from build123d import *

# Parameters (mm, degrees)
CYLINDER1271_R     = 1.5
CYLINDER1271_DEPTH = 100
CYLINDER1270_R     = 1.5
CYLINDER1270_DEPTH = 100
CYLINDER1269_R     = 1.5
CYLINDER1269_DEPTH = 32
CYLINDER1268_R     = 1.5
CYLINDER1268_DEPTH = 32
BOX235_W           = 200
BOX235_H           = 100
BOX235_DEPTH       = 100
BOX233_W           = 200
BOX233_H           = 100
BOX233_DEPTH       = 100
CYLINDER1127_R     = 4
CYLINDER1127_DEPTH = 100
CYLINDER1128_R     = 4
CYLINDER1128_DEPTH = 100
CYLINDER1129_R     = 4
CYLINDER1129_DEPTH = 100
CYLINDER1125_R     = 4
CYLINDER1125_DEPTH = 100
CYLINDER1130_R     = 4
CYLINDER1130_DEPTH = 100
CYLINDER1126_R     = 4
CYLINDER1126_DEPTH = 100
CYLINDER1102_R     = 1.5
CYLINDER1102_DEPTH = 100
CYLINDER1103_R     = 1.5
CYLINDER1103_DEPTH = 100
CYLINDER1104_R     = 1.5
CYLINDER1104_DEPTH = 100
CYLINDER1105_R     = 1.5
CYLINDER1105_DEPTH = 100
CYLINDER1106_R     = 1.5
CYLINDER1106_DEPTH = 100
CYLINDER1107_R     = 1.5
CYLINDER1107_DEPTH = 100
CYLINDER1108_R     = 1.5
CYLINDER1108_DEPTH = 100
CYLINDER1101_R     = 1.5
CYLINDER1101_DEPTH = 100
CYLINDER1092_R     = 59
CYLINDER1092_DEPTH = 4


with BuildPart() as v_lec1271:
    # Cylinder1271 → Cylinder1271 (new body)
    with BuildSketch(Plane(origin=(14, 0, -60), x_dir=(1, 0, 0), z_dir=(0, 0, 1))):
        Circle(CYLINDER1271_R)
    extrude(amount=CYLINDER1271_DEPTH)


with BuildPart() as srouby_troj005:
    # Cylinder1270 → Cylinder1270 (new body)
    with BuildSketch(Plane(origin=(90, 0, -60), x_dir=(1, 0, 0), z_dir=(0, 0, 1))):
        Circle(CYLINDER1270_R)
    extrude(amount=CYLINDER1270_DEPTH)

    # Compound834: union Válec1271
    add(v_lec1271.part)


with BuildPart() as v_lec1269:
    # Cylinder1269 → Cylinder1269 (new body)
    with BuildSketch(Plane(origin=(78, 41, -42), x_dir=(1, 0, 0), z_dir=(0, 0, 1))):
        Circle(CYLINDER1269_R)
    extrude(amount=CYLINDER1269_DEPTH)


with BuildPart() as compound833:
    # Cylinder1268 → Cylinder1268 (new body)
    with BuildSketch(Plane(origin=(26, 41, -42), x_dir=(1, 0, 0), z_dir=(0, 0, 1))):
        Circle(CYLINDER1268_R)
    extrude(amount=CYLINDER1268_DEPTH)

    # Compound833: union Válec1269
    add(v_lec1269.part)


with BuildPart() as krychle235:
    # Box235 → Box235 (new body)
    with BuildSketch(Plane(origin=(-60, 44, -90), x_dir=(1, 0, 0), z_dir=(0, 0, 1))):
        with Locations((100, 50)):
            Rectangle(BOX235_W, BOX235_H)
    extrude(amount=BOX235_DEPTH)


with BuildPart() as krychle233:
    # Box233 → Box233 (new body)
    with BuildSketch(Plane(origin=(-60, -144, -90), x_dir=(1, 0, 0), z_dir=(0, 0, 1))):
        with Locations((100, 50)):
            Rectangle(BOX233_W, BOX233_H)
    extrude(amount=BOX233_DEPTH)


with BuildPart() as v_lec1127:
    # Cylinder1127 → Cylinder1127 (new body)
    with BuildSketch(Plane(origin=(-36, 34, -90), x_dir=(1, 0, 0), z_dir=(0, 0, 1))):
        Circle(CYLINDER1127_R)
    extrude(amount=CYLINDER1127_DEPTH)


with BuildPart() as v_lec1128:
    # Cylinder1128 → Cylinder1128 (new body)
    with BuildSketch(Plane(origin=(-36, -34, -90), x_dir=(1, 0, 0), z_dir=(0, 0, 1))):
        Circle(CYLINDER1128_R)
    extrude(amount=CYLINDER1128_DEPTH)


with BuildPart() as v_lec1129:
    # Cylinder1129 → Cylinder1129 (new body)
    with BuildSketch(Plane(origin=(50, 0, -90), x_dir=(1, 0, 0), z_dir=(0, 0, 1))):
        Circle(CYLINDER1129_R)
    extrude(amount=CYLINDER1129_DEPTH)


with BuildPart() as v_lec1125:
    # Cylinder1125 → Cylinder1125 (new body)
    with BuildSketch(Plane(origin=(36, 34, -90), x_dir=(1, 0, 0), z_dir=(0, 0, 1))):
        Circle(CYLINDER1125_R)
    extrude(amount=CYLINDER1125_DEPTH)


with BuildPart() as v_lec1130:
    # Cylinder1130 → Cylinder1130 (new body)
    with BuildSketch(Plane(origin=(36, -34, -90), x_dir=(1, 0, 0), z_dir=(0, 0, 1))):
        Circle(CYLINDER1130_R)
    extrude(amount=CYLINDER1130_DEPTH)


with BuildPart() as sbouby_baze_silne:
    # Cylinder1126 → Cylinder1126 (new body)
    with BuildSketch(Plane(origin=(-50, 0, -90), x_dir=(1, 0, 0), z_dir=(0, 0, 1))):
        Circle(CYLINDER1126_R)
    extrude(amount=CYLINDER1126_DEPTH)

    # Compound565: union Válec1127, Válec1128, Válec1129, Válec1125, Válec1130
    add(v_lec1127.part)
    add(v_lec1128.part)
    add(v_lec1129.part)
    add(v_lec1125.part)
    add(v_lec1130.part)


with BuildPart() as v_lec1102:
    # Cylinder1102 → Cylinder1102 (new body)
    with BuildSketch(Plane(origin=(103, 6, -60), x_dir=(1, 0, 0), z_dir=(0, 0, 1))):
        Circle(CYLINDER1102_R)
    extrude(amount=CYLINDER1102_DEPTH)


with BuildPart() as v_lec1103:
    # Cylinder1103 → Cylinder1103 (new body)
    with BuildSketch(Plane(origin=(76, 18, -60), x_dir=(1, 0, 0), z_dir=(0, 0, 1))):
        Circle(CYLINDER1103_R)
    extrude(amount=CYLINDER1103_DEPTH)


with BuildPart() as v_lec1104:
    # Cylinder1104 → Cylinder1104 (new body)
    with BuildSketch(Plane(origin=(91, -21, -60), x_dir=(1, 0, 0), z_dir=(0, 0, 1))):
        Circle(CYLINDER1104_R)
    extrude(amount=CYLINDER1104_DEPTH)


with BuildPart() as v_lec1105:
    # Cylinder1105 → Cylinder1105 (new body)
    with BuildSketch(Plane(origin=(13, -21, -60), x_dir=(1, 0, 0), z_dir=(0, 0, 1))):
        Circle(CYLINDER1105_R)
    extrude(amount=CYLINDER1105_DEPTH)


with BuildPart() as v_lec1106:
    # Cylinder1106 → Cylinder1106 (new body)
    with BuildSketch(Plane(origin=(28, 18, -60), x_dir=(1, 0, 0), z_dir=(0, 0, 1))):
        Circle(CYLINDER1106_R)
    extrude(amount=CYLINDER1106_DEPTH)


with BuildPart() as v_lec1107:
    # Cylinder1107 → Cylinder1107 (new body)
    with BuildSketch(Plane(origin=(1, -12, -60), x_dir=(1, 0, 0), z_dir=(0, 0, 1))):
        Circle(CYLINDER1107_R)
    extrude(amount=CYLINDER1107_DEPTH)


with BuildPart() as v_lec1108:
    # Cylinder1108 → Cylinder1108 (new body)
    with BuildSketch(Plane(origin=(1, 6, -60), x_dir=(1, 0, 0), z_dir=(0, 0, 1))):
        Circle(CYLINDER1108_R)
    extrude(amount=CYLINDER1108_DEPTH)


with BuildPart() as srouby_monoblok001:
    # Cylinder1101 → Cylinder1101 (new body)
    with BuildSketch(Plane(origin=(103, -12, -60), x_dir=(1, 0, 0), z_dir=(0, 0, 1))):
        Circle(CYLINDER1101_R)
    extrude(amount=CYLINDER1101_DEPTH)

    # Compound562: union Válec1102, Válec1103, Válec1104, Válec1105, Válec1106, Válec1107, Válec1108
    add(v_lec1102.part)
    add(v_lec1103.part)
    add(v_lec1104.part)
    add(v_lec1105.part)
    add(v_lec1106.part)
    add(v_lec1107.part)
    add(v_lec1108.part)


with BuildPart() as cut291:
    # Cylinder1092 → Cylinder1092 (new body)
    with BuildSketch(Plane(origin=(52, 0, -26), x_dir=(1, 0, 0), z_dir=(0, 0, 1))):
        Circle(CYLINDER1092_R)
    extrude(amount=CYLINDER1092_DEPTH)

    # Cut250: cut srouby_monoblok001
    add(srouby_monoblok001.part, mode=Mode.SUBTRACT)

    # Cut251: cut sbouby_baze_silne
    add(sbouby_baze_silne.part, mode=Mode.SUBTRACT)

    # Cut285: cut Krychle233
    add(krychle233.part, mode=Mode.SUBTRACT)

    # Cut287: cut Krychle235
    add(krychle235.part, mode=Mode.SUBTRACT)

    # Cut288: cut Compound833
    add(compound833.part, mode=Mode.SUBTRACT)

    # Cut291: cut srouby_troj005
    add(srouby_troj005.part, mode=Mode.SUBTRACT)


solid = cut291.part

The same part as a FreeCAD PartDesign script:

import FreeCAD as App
import Part
import Sketcher
from FreeCAD import Vector
Q = App.Units.Quantity

doc = App.newDocument("Part")
params = doc.addObject("Spreadsheet::Sheet", "Params")
for row, (alias, value) in enumerate([
    ("sketch1_diameter", "3 mm"),
    ("pad1_length", "100 mm"),
    ("sketch2_diameter", "3 mm"),
    ("pad2_length", "100 mm"),
    ("sketch3_diameter", "3 mm"),
    ("pad3_length", "32 mm"),
    ("sketch4_diameter", "3 mm"),
    ("pad4_length", "32 mm"),
    ("sketch5_width", "200 mm"),
    ("sketch5_height", "100 mm"),
    ("pad5_length", "100 mm"),
    ("sketch6_width", "200 mm"),
    ("sketch6_height", "100 mm"),
    ("pad6_length", "100 mm"),
    ("sketch7_diameter", "8 mm"),
    ("pad7_length", "100 mm"),
    ("sketch8_diameter", "8 mm"),
    ("pad8_length", "100 mm"),
    ("sketch9_diameter", "8 mm"),
    ("pad9_length", "100 mm"),
    ("sketch10_diameter", "8 mm"),
    ("pad10_length", "100 mm"),
    ("sketch11_diameter", "8 mm"),
    ("pad11_length", "100 mm"),
    ("sketch12_diameter", "8 mm"),
    ("pad12_length", "100 mm"),
    ("sketch13_diameter", "3 mm"),
    ("pad13_length", "100 mm"),
    ("sketch14_diameter", "3 mm"),
    ("pad14_length", "100 mm"),
    ("sketch15_diameter", "3 mm"),
    ("pad15_length", "100 mm"),
    ("sketch16_diameter", "3 mm"),
    ("pad16_length", "100 mm"),
    ("sketch17_diameter", "3 mm"),
    ("pad17_length", "100 mm"),
    ("sketch18_diameter", "3 mm"),
    ("pad18_length", "100 mm"),
    ("sketch19_diameter", "3 mm"),
    ("pad19_length", "100 mm"),
    ("sketch20_diameter", "3 mm"),
    ("pad20_length", "100 mm"),
    ("sketch21_diameter", "118 mm"),
    ("pad21_length", "4 mm"),
], start=1):
    params.set(f"A{row}", alias)
    params.set(f"B{row}", "=" + value)
    params.setAlias(f"B{row}", alias)

body = doc.addObject("PartDesign::Body", "Body")

# Sketch on XY plane
sketch1 = body.newObject("Sketcher::SketchObject", "Sketch")
sketch1.AttachmentSupport = (doc.getObject("XY_Plane"), [""])
sketch1.MapMode = "FlatFace"
sketch1.AttachmentOffset = App.Placement(Vector(0, 0, -60), App.Rotation())
sketch1.addGeometry(Part.Circle(Vector(14, 0, 0), Vector(0, 0, 1), 1.5), False)
sketch1.addConstraint([
    Sketcher.Constraint("PointOnObject", 0, 3, -1),
    Sketcher.Constraint("Diameter", 0, Q("3 mm")),
    Sketcher.Constraint("DistanceX", -1, 1, 0, 3, Q("14 mm")),
])
sketch1.setExpression("Constraints[1]", "Params.sketch1_diameter")
pad1 = body.newObject("PartDesign::Pad", "Pad")
pad1.Profile = sketch1
pad1.setExpression("Length", "Params.pad1_length")
body2 = doc.addObject("PartDesign::Body", "Body001")
body2.AllowCompound = True

# Sketch on XY plane
sketch2 = body2.newObject("Sketcher::SketchObject", "Sketch001")
sketch2.AttachmentSupport = (doc.getObject("XY_Plane001"), [""])
sketch2.MapMode = "FlatFace"
sketch2.AttachmentOffset = App.Placement(Vector(0, 0, -60), App.Rotation())
sketch2.addGeometry(Part.Circle(Vector(90, 0, 0), Vector(0, 0, 1), 1.5), False)
sketch2.addConstraint([
    Sketcher.Constraint("PointOnObject", 0, 3, -1),
    Sketcher.Constraint("Diameter", 0, Q("3 mm")),
    Sketcher.Constraint("DistanceX", -1, 1, 0, 3, Q("90 mm")),
])
sketch2.setExpression("Constraints[1]", "Params.sketch2_diameter")
pad2 = body2.newObject("PartDesign::Pad", "Pad001")
pad2.Profile = sketch2
pad2.setExpression("Length", "Params.pad2_length")
doc.recompute()

boolean = body2.newObject("PartDesign::Boolean", "Boolean")
boolean.Type = "Fuse"
boolean.addObjects([body])
body3 = doc.addObject("PartDesign::Body", "Body002")

# Sketch on XY plane
sketch3 = body3.newObject("Sketcher::SketchObject", "Sketch002")
sketch3.AttachmentSupport = (doc.getObject("XY_Plane002"), [""])
sketch3.MapMode = "FlatFace"
sketch3.AttachmentOffset = App.Placement(Vector(0, 0, -42), App.Rotation())
sketch3.addGeometry(Part.Circle(Vector(78, 41, 0), Vector(0, 0, 1), 1.5), False)
sketch3.addConstraint([
    Sketcher.Constraint("Diameter", 0, Q("3 mm")),
    Sketcher.Constraint("DistanceX", -1, 1, 0, 3, Q("78 mm")),
    Sketcher.Constraint("DistanceY", -1, 1, 0, 3, Q("41 mm")),
])
sketch3.setExpression("Constraints[0]", "Params.sketch3_diameter")
pad3 = body3.newObject("PartDesign::Pad", "Pad002")
pad3.Profile = sketch3
pad3.setExpression("Length", "Params.pad3_length")
body4 = doc.addObject("PartDesign::Body", "Body003")
body4.AllowCompound = True

# Sketch on XY plane
sketch4 = body4.newObject("Sketcher::SketchObject", "Sketch003")
sketch4.AttachmentSupport = (doc.getObject("XY_Plane003"), [""])
sketch4.MapMode = "FlatFace"
sketch4.AttachmentOffset = App.Placement(Vector(0, 0, -42), App.Rotation())
sketch4.addGeometry(Part.Circle(Vector(26, 41, 0), Vector(0, 0, 1), 1.5), False)
sketch4.addConstraint([
    Sketcher.Constraint("Diameter", 0, Q("3 mm")),
    Sketcher.Constraint("DistanceX", -1, 1, 0, 3, Q("26 mm")),
    Sketcher.Constraint("DistanceY", -1, 1, 0, 3, Q("41 mm")),
])
sketch4.setExpression("Constraints[0]", "Params.sketch4_diameter")
pad4 = body4.newObject("PartDesign::Pad", "Pad003")
pad4.Profile = sketch4
pad4.setExpression("Length", "Params.pad4_length")
doc.recompute()

boolean2 = body4.newObject("PartDesign::Boolean", "Boolean001")
boolean2.Type = "Fuse"
boolean2.addObjects([body3])
body5 = doc.addObject("PartDesign::Body", "Body004")

# Sketch on XY plane
sketch5 = body5.newObject("Sketcher::SketchObject", "Sketch004")
sketch5.AttachmentSupport = (doc.getObject("XY_Plane004"), [""])
sketch5.MapMode = "FlatFace"
sketch5.AttachmentOffset = App.Placement(Vector(0, 0, -90), App.Rotation())
sketch5.addGeometry([
    Part.LineSegment(Vector(-60, 144, 0), Vector(-60, 44, 0)),
    Part.LineSegment(Vector(-60, 44, 0), Vector(140, 44, 0)),
    Part.LineSegment(Vector(140, 44, 0), Vector(140, 144, 0)),
    Part.LineSegment(Vector(140, 144, 0), Vector(-60, 144, 0)),
], False)
sketch5.addConstraint([
    Sketcher.Constraint("Coincident", 0, 2, 1, 1),
    Sketcher.Constraint("Coincident", 1, 2, 2, 1),
    Sketcher.Constraint("Coincident", 2, 2, 3, 1),
    Sketcher.Constraint("Coincident", 3, 2, 0, 1),
    Sketcher.Constraint("Vertical", 0),
    Sketcher.Constraint("Horizontal", 1),
    Sketcher.Constraint("Vertical", 2),
    Sketcher.Constraint("Horizontal", 3),
    Sketcher.Constraint("DistanceX", 1, 1, 1, 2, Q("200 mm")),
    Sketcher.Constraint("DistanceY", 0, 2, 0, 1, Q("100 mm")),
    Sketcher.Constraint("DistanceX", 0, 2, -1, 1, Q("60 mm")),
    Sketcher.Constraint("DistanceY", -1, 1, 0, 2, Q("44 mm")),
])
sketch5.setExpression("Constraints[8]", "Params.sketch5_width")
sketch5.setExpression("Constraints[9]", "Params.sketch5_height")
pad5 = body5.newObject("PartDesign::Pad", "Pad004")
pad5.Profile = sketch5
pad5.setExpression("Length", "Params.pad5_length")
body6 = doc.addObject("PartDesign::Body", "Body005")

# Sketch on XY plane
sketch6 = body6.newObject("Sketcher::SketchObject", "Sketch005")
sketch6.AttachmentSupport = (doc.getObject("XY_Plane005"), [""])
sketch6.MapMode = "FlatFace"
sketch6.AttachmentOffset = App.Placement(Vector(0, 0, -90), App.Rotation())
sketch6.addGeometry([
    Part.LineSegment(Vector(-60, -44, 0), Vector(-60, -144, 0)),
    Part.LineSegment(Vector(-60, -144, 0), Vector(140, -144, 0)),
    Part.LineSegment(Vector(140, -144, 0), Vector(140, -44, 0)),
    Part.LineSegment(Vector(140, -44, 0), Vector(-60, -44, 0)),
], False)
sketch6.addConstraint([
    Sketcher.Constraint("Coincident", 0, 2, 1, 1),
    Sketcher.Constraint("Coincident", 1, 2, 2, 1),
    Sketcher.Constraint("Coincident", 2, 2, 3, 1),
    Sketcher.Constraint("Coincident", 3, 2, 0, 1),
    Sketcher.Constraint("Vertical", 0),
    Sketcher.Constraint("Horizontal", 1),
    Sketcher.Constraint("Vertical", 2),
    Sketcher.Constraint("Horizontal", 3),
    Sketcher.Constraint("DistanceX", 1, 1, 1, 2, Q("200 mm")),
    Sketcher.Constraint("DistanceY", 0, 2, 0, 1, Q("100 mm")),
    Sketcher.Constraint("DistanceX", 0, 2, -1, 1, Q("60 mm")),
    Sketcher.Constraint("DistanceY", 0, 2, -1, 1, Q("144 mm")),
])
sketch6.setExpression("Constraints[8]", "Params.sketch6_width")
sketch6.setExpression("Constraints[9]", "Params.sketch6_height")
pad6 = body6.newObject("PartDesign::Pad", "Pad005")
pad6.Profile = sketch6
pad6.setExpression("Length", "Params.pad6_length")
body7 = doc.addObject("PartDesign::Body", "Body006")

# Sketch on XY plane
sketch7 = body7.newObject("Sketcher::SketchObject", "Sketch006")
sketch7.AttachmentSupport = (doc.getObject("XY_Plane006"), [""])
sketch7.MapMode = "FlatFace"
sketch7.AttachmentOffset = App.Placement(Vector(0, 0, -90), App.Rotation())
sketch7.addGeometry(Part.Circle(Vector(-36, 34, 0), Vector(0, 0, 1), 4), False)
sketch7.addConstraint([
    Sketcher.Constraint("Diameter", 0, Q("8 mm")),
    Sketcher.Constraint("DistanceX", 0, 3, -1, 1, Q("36 mm")),
    Sketcher.Constraint("DistanceY", -1, 1, 0, 3, Q("34 mm")),
])
sketch7.setExpression("Constraints[0]", "Params.sketch7_diameter")
pad7 = body7.newObject("PartDesign::Pad", "Pad006")
pad7.Profile = sketch7
pad7.setExpression("Length", "Params.pad7_length")
body8 = doc.addObject("PartDesign::Body", "Body007")

# Sketch on XY plane
sketch8 = body8.newObject("Sketcher::SketchObject", "Sketch007")
sketch8.AttachmentSupport = (doc.getObject("XY_Plane007"), [""])
sketch8.MapMode = "FlatFace"
sketch8.AttachmentOffset = App.Placement(Vector(0, 0, -90), App.Rotation())
sketch8.addGeometry(Part.Circle(Vector(-36, -34, 0), Vector(0, 0, 1), 4), False)
sketch8.addConstraint([
    Sketcher.Constraint("Diameter", 0, Q("8 mm")),
    Sketcher.Constraint("DistanceX", 0, 3, -1, 1, Q("36 mm")),
    Sketcher.Constraint("DistanceY", 0, 3, -1, 1, Q("34 mm")),
])
sketch8.setExpression("Constraints[0]", "Params.sketch8_diameter")
pad8 = body8.newObject("PartDesign::Pad", "Pad007")
pad8.Profile = sketch8
pad8.setExpression("Length", "Params.pad8_length")
body9 = doc.addObject("PartDesign::Body", "Body008")

# Sketch on XY plane
sketch9 = body9.newObject("Sketcher::SketchObject", "Sketch008")
sketch9.AttachmentSupport = (doc.getObject("XY_Plane008"), [""])
sketch9.MapMode = "FlatFace"
sketch9.AttachmentOffset = App.Placement(Vector(0, 0, -90), App.Rotation())
sketch9.addGeometry(Part.Circle(Vector(50, 0, 0), Vector(0, 0, 1), 4), False)
sketch9.addConstraint([
    Sketcher.Constraint("PointOnObject", 0, 3, -1),
    Sketcher.Constraint("Diameter", 0, Q("8 mm")),
    Sketcher.Constraint("DistanceX", -1, 1, 0, 3, Q("50 mm")),
])
sketch9.setExpression("Constraints[1]", "Params.sketch9_diameter")
pad9 = body9.newObject("PartDesign::Pad", "Pad008")
pad9.Profile = sketch9
pad9.setExpression("Length", "Params.pad9_length")
body10 = doc.addObject("PartDesign::Body", "Body009")

# Sketch on XY plane
sketch10 = body10.newObject("Sketcher::SketchObject", "Sketch009")
sketch10.AttachmentSupport = (doc.getObject("XY_Plane009"), [""])
sketch10.MapMode = "FlatFace"
sketch10.AttachmentOffset = App.Placement(Vector(0, 0, -90), App.Rotation())
sketch10.addGeometry(Part.Circle(Vector(36, 34, 0), Vector(0, 0, 1), 4), False)
sketch10.addConstraint([
    Sketcher.Constraint("Diameter", 0, Q("8 mm")),
    Sketcher.Constraint("DistanceX", -1, 1, 0, 3, Q("36 mm")),
    Sketcher.Constraint("DistanceY", -1, 1, 0, 3, Q("34 mm")),
])
sketch10.setExpression("Constraints[0]", "Params.sketch10_diameter")
pad10 = body10.newObject("PartDesign::Pad", "Pad009")
pad10.Profile = sketch10
pad10.setExpression("Length", "Params.pad10_length")
body11 = doc.addObject("PartDesign::Body", "Body010")

# Sketch on XY plane
sketch11 = body11.newObject("Sketcher::SketchObject", "Sketch010")
sketch11.AttachmentSupport = (doc.getObject("XY_Plane010"), [""])
sketch11.MapMode = "FlatFace"
sketch11.AttachmentOffset = App.Placement(Vector(0, 0, -90), App.Rotation())
sketch11.addGeometry(Part.Circle(Vector(36, -34, 0), Vector(0, 0, 1), 4), False)
sketch11.addConstraint([
    Sketcher.Constraint("Diameter", 0, Q("8 mm")),
    Sketcher.Constraint("DistanceX", -1, 1, 0, 3, Q("36 mm")),
    Sketcher.Constraint("DistanceY", 0, 3, -1, 1, Q("34 mm")),
])
sketch11.setExpression("Constraints[0]", "Params.sketch11_diameter")
pad11 = body11.newObject("PartDesign::Pad", "Pad010")
pad11.Profile = sketch11
pad11.setExpression("Length", "Params.pad11_length")
body12 = doc.addObject("PartDesign::Body", "Body011")
body12.AllowCompound = True

# Sketch on XY plane
sketch12 = body12.newObject("Sketcher::SketchObject", "Sketch011")
sketch12.AttachmentSupport = (doc.getObject("XY_Plane011"), [""])
sketch12.MapMode = "FlatFace"
sketch12.AttachmentOffset = App.Placement(Vector(0, 0, -90), App.Rotation())
sketch12.addGeometry(Part.Circle(Vector(-50, 0, 0), Vector(0, 0, 1), 4), False)
sketch12.addConstraint([
    Sketcher.Constraint("PointOnObject", 0, 3, -1),
    Sketcher.Constraint("Diameter", 0, Q("8 mm")),
    Sketcher.Constraint("DistanceX", 0, 3, -1, 1, Q("50 mm")),
])
sketch12.setExpression("Constraints[1]", "Params.sketch12_diameter")
pad12 = body12.newObject("PartDesign::Pad", "Pad011")
pad12.Profile = sketch12
pad12.setExpression("Length", "Params.pad12_length")
doc.recompute()

boolean3 = body12.newObject("PartDesign::Boolean", "Boolean002")
boolean3.Type = "Fuse"
boolean3.addObjects([body7])
doc.recompute()

boolean4 = body12.newObject("PartDesign::Boolean", "Boolean003")
boolean4.Type = "Fuse"
boolean4.addObjects([body8])
doc.recompute()

boolean5 = body12.newObject("PartDesign::Boolean", "Boolean004")
boolean5.Type = "Fuse"
boolean5.addObjects([body9])
doc.recompute()

boolean6 = body12.newObject("PartDesign::Boolean", "Boolean005")
boolean6.Type = "Fuse"
boolean6.addObjects([body10])
doc.recompute()

boolean7 = body12.newObject("PartDesign::Boolean", "Boolean006")
boolean7.Type = "Fuse"
boolean7.addObjects([body11])
body13 = doc.addObject("PartDesign::Body", "Body012")

# Sketch on XY plane
sketch13 = body13.newObject("Sketcher::SketchObject", "Sketch012")
sketch13.AttachmentSupport = (doc.getObject("XY_Plane012"), [""])
sketch13.MapMode = "FlatFace"
sketch13.AttachmentOffset = App.Placement(Vector(0, 0, -60), App.Rotation())
sketch13.addGeometry(Part.Circle(Vector(103, 6, 0), Vector(0, 0, 1), 1.5), False)
sketch13.addConstraint([
    Sketcher.Constraint("Diameter", 0, Q("3 mm")),
    Sketcher.Constraint("DistanceX", -1, 1, 0, 3, Q("103 mm")),
    Sketcher.Constraint("DistanceY", -1, 1, 0, 3, Q("6 mm")),
])
sketch13.setExpression("Constraints[0]", "Params.sketch13_diameter")
pad13 = body13.newObject("PartDesign::Pad", "Pad012")
pad13.Profile = sketch13
pad13.setExpression("Length", "Params.pad13_length")
body14 = doc.addObject("PartDesign::Body", "Body013")

# Sketch on XY plane
sketch14 = body14.newObject("Sketcher::SketchObject", "Sketch013")
sketch14.AttachmentSupport = (doc.getObject("XY_Plane013"), [""])
sketch14.MapMode = "FlatFace"
sketch14.AttachmentOffset = App.Placement(Vector(0, 0, -60), App.Rotation())
sketch14.addGeometry(Part.Circle(Vector(76, 18, 0), Vector(0, 0, 1), 1.5), False)
sketch14.addConstraint([
    Sketcher.Constraint("Diameter", 0, Q("3 mm")),
    Sketcher.Constraint("DistanceX", -1, 1, 0, 3, Q("76 mm")),
    Sketcher.Constraint("DistanceY", -1, 1, 0, 3, Q("18 mm")),
])
sketch14.setExpression("Constraints[0]", "Params.sketch14_diameter")
pad14 = body14.newObject("PartDesign::Pad", "Pad013")
pad14.Profile = sketch14
pad14.setExpression("Length", "Params.pad14_length")
body15 = doc.addObject("PartDesign::Body", "Body014")

# Sketch on XY plane
sketch15 = body15.newObject("Sketcher::SketchObject", "Sketch014")
sketch15.AttachmentSupport = (doc.getObject("XY_Plane014"), [""])
sketch15.MapMode = "FlatFace"
sketch15.AttachmentOffset = App.Placement(Vector(0, 0, -60), App.Rotation())
sketch15.addGeometry(Part.Circle(Vector(91, -21, 0), Vector(0, 0, 1), 1.5), False)
sketch15.addConstraint([
    Sketcher.Constraint("Diameter", 0, Q("3 mm")),
    Sketcher.Constraint("DistanceX", -1, 1, 0, 3, Q("91 mm")),
    Sketcher.Constraint("DistanceY", 0, 3, -1, 1, Q("21 mm")),
])
sketch15.setExpression("Constraints[0]", "Params.sketch15_diameter")
pad15 = body15.newObject("PartDesign::Pad", "Pad014")
pad15.Profile = sketch15
pad15.setExpression("Length", "Params.pad15_length")
body16 = doc.addObject("PartDesign::Body", "Body015")

# Sketch on XY plane
sketch16 = body16.newObject("Sketcher::SketchObject", "Sketch015")
sketch16.AttachmentSupport = (doc.getObject("XY_Plane015"), [""])
sketch16.MapMode = "FlatFace"
sketch16.AttachmentOffset = App.Placement(Vector(0, 0, -60), App.Rotation())
sketch16.addGeometry(Part.Circle(Vector(13, -21, 0), Vector(0, 0, 1), 1.5), False)
sketch16.addConstraint([
    Sketcher.Constraint("Diameter", 0, Q("3 mm")),
    Sketcher.Constraint("DistanceX", -1, 1, 0, 3, Q("13 mm")),
    Sketcher.Constraint("DistanceY", 0, 3, -1, 1, Q("21 mm")),
])
sketch16.setExpression("Constraints[0]", "Params.sketch16_diameter")
pad16 = body16.newObject("PartDesign::Pad", "Pad015")
pad16.Profile = sketch16
pad16.setExpression("Length", "Params.pad16_length")
body17 = doc.addObject("PartDesign::Body", "Body016")

# Sketch on XY plane
sketch17 = body17.newObject("Sketcher::SketchObject", "Sketch016")
sketch17.AttachmentSupport = (doc.getObject("XY_Plane016"), [""])
sketch17.MapMode = "FlatFace"
sketch17.AttachmentOffset = App.Placement(Vector(0, 0, -60), App.Rotation())
sketch17.addGeometry(Part.Circle(Vector(28, 18, 0), Vector(0, 0, 1), 1.5), False)
sketch17.addConstraint([
    Sketcher.Constraint("Diameter", 0, Q("3 mm")),
    Sketcher.Constraint("DistanceX", -1, 1, 0, 3, Q("28 mm")),
    Sketcher.Constraint("DistanceY", -1, 1, 0, 3, Q("18 mm")),
])
sketch17.setExpression("Constraints[0]", "Params.sketch17_diameter")
pad17 = body17.newObject("PartDesign::Pad", "Pad016")
pad17.Profile = sketch17
pad17.setExpression("Length", "Params.pad17_length")
body18 = doc.addObject("PartDesign::Body", "Body017")

# Sketch on XY plane
sketch18 = body18.newObject("Sketcher::SketchObject", "Sketch017")
sketch18.AttachmentSupport = (doc.getObject("XY_Plane017"), [""])
sketch18.MapMode = "FlatFace"
sketch18.AttachmentOffset = App.Placement(Vector(0, 0, -60), App.Rotation())
sketch18.addGeometry(Part.Circle(Vector(1, -12, 0), Vector(0, 0, 1), 1.5), False)
sketch18.addConstraint([
    Sketcher.Constraint("Diameter", 0, Q("3 mm")),
    Sketcher.Constraint("DistanceX", -1, 1, 0, 3, Q("1 mm")),
    Sketcher.Constraint("DistanceY", 0, 3, -1, 1, Q("12 mm")),
])
sketch18.setExpression("Constraints[0]", "Params.sketch18_diameter")
pad18 = body18.newObject("PartDesign::Pad", "Pad017")
pad18.Profile = sketch18
pad18.setExpression("Length", "Params.pad18_length")
body19 = doc.addObject("PartDesign::Body", "Body018")

# Sketch on XY plane
sketch19 = body19.newObject("Sketcher::SketchObject", "Sketch018")
sketch19.AttachmentSupport = (doc.getObject("XY_Plane018"), [""])
sketch19.MapMode = "FlatFace"
sketch19.AttachmentOffset = App.Placement(Vector(0, 0, -60), App.Rotation())
sketch19.addGeometry(Part.Circle(Vector(1, 6, 0), Vector(0, 0, 1), 1.5), False)
sketch19.addConstraint([
    Sketcher.Constraint("Diameter", 0, Q("3 mm")),
    Sketcher.Constraint("DistanceX", -1, 1, 0, 3, Q("1 mm")),
    Sketcher.Constraint("DistanceY", -1, 1, 0, 3, Q("6 mm")),
])
sketch19.setExpression("Constraints[0]", "Params.sketch19_diameter")
pad19 = body19.newObject("PartDesign::Pad", "Pad018")
pad19.Profile = sketch19
pad19.setExpression("Length", "Params.pad19_length")
body20 = doc.addObject("PartDesign::Body", "Body019")
body20.AllowCompound = True

# Sketch on XY plane
sketch20 = body20.newObject("Sketcher::SketchObject", "Sketch019")
sketch20.AttachmentSupport = (doc.getObject("XY_Plane019"), [""])
sketch20.MapMode = "FlatFace"
sketch20.AttachmentOffset = App.Placement(Vector(0, 0, -60), App.Rotation())
sketch20.addGeometry(Part.Circle(Vector(103, -12, 0), Vector(0, 0, 1), 1.5), False)
sketch20.addConstraint([
    Sketcher.Constraint("Diameter", 0, Q("3 mm")),
    Sketcher.Constraint("DistanceX", -1, 1, 0, 3, Q("103 mm")),
    Sketcher.Constraint("DistanceY", 0, 3, -1, 1, Q("12 mm")),
])
sketch20.setExpression("Constraints[0]", "Params.sketch20_diameter")
pad20 = body20.newObject("PartDesign::Pad", "Pad019")
pad20.Profile = sketch20
pad20.setExpression("Length", "Params.pad20_length")
doc.recompute()

boolean8 = body20.newObject("PartDesign::Boolean", "Boolean007")
boolean8.Type = "Fuse"
boolean8.addObjects([body13])
doc.recompute()

boolean9 = body20.newObject("PartDesign::Boolean", "Boolean008")
boolean9.Type = "Fuse"
boolean9.addObjects([body14])
doc.recompute()

boolean10 = body20.newObject("PartDesign::Boolean", "Boolean009")
boolean10.Type = "Fuse"
boolean10.addObjects([body15])
doc.recompute()

boolean11 = body20.newObject("PartDesign::Boolean", "Boolean010")
boolean11.Type = "Fuse"
boolean11.addObjects([body16])
doc.recompute()

boolean12 = body20.newObject("PartDesign::Boolean", "Boolean011")
boolean12.Type = "Fuse"
boolean12.addObjects([body17])
doc.recompute()

boolean13 = body20.newObject("PartDesign::Boolean", "Boolean012")
boolean13.Type = "Fuse"
boolean13.addObjects([body18])
doc.recompute()

boolean14 = body20.newObject("PartDesign::Boolean", "Boolean013")
boolean14.Type = "Fuse"
boolean14.addObjects([body19])
body21 = doc.addObject("PartDesign::Body", "Body020")

# Sketch on XY plane
sketch21 = body21.newObject("Sketcher::SketchObject", "Sketch020")
sketch21.AttachmentSupport = (doc.getObject("XY_Plane020"), [""])
sketch21.MapMode = "FlatFace"
sketch21.AttachmentOffset = App.Placement(Vector(0, 0, -26), App.Rotation())
sketch21.addGeometry(Part.Circle(Vector(52, 0, 0), Vector(0, 0, 1), 59), False)
sketch21.addConstraint([
    Sketcher.Constraint("PointOnObject", 0, 3, -1),
    Sketcher.Constraint("Diameter", 0, Q("118 mm")),
    Sketcher.Constraint("DistanceX", -1, 1, 0, 3, Q("52 mm")),
])
sketch21.setExpression("Constraints[1]", "Params.sketch21_diameter")
pad21 = body21.newObject("PartDesign::Pad", "Pad020")
pad21.Profile = sketch21
pad21.setExpression("Length", "Params.pad21_length")
doc.recompute()

boolean15 = body21.newObject("PartDesign::Boolean", "Boolean014")
boolean15.Type = "Cut"
boolean15.addObjects([body20])
doc.recompute()

boolean16 = body21.newObject("PartDesign::Boolean", "Boolean015")
boolean16.Type = "Cut"
boolean16.addObjects([body12])
doc.recompute()

boolean17 = body21.newObject("PartDesign::Boolean", "Boolean016")
boolean17.Type = "Cut"
boolean17.addObjects([body6])
doc.recompute()

boolean18 = body21.newObject("PartDesign::Boolean", "Boolean017")
boolean18.Type = "Cut"
boolean18.addObjects([body5])
doc.recompute()

boolean19 = body21.newObject("PartDesign::Boolean", "Boolean018")
boolean19.Type = "Cut"
boolean19.addObjects([body4])
doc.recompute()

boolean20 = body21.newObject("PartDesign::Boolean", "Boolean019")
boolean20.Type = "Cut"
boolean20.addObjects([body2])

doc.recompute()
